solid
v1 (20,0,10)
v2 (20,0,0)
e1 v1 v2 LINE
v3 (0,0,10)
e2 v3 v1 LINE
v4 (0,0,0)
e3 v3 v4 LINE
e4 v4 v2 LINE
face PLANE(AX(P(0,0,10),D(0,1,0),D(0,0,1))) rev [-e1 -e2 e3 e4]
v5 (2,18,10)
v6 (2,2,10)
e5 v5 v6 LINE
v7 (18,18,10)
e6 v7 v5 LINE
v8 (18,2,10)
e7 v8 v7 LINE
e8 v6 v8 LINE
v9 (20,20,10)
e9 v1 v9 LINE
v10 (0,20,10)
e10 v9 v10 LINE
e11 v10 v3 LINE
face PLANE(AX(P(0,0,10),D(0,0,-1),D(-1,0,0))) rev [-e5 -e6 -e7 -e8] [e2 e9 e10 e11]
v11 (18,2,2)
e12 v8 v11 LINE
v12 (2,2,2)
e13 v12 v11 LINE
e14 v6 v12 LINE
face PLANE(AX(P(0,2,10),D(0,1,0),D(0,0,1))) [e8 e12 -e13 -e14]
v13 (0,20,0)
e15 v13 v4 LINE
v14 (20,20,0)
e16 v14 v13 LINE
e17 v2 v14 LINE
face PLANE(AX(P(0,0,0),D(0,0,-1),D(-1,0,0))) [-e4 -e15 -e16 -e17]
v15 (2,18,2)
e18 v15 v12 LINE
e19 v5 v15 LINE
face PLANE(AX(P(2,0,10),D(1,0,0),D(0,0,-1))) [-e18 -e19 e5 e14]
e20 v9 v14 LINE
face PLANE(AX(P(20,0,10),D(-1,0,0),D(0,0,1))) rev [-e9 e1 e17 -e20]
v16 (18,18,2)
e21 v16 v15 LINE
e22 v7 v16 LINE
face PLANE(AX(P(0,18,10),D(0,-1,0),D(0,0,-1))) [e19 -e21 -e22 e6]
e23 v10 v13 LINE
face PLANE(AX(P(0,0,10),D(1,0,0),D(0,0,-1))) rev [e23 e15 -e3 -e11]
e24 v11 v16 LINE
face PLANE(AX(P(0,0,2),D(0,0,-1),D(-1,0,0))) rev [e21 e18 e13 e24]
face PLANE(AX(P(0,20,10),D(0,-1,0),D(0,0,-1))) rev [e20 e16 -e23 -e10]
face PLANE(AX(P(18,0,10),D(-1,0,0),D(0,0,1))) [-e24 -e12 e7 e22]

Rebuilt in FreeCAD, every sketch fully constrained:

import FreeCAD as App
import Part
import Sketcher


def faces_at(feature, points):
    """Names of the faces that lie closest to the given points."""
    faces = feature.Shape.Faces
    near = lambda p: min(range(len(faces)), key=lambda i: faces[i].distToShape(Part.Vertex(*p))[0])
    return sorted({f"Face{near(p) + 1}" for p in points})

doc = App.newDocument("Part")
body = doc.addObject("PartDesign::Body", "Body")

sketch1 = body.newObject("Sketcher::SketchObject", "Sketch")
sketch1.AttachmentSupport = (doc.getObject("XY_Plane"), [""])
sketch1.MapMode = "FlatFace"
sketch1.addGeometry([
    Part.LineSegment(App.Vector(0, 20, 0), App.Vector(0, 0, 0)),
    Part.LineSegment(App.Vector(0, 0, 0), App.Vector(20, 0, 0)),
    Part.LineSegment(App.Vector(20, 0, 0), App.Vector(20, 20, 0)),
    Part.LineSegment(App.Vector(20, 20, 0), App.Vector(0, 20, 0)),
], False)
sketch1.addConstraint([
    Sketcher.Constraint("Coincident", 0, 2, 1, 1),
    Sketcher.Constraint("Coincident", 1, 2, 2, 1),
    Sketcher.Constraint("Coincident", 2, 2, 3, 1),
    Sketcher.Constraint("Coincident", 3, 2, 0, 1),
    Sketcher.Constraint("Vertical", 0),
    Sketcher.Constraint("Horizontal", 1),
    Sketcher.Constraint("Vertical", 2),
    Sketcher.Constraint("Horizontal", 3),
    Sketcher.Constraint("Coincident", 0, 2, -1, 1),
    Sketcher.Constraint("Equal", 3, 0),
    Sketcher.Constraint("DistanceX", 1, 1, 1, 2, 20.0),
])
pad1 = body.newObject("PartDesign::Pad", "Pad")
pad1.Profile = sketch1
pad1.Length = 10
doc.recompute()

thickness = body.newObject("PartDesign::Thickness", "Thickness")
thickness.Base = (pad1, faces_at(pad1, [(10, 10, 10)]))
thickness.Value = 2
thickness.Reversed = True
thickness.Join = "Intersection"

doc.recompute()
